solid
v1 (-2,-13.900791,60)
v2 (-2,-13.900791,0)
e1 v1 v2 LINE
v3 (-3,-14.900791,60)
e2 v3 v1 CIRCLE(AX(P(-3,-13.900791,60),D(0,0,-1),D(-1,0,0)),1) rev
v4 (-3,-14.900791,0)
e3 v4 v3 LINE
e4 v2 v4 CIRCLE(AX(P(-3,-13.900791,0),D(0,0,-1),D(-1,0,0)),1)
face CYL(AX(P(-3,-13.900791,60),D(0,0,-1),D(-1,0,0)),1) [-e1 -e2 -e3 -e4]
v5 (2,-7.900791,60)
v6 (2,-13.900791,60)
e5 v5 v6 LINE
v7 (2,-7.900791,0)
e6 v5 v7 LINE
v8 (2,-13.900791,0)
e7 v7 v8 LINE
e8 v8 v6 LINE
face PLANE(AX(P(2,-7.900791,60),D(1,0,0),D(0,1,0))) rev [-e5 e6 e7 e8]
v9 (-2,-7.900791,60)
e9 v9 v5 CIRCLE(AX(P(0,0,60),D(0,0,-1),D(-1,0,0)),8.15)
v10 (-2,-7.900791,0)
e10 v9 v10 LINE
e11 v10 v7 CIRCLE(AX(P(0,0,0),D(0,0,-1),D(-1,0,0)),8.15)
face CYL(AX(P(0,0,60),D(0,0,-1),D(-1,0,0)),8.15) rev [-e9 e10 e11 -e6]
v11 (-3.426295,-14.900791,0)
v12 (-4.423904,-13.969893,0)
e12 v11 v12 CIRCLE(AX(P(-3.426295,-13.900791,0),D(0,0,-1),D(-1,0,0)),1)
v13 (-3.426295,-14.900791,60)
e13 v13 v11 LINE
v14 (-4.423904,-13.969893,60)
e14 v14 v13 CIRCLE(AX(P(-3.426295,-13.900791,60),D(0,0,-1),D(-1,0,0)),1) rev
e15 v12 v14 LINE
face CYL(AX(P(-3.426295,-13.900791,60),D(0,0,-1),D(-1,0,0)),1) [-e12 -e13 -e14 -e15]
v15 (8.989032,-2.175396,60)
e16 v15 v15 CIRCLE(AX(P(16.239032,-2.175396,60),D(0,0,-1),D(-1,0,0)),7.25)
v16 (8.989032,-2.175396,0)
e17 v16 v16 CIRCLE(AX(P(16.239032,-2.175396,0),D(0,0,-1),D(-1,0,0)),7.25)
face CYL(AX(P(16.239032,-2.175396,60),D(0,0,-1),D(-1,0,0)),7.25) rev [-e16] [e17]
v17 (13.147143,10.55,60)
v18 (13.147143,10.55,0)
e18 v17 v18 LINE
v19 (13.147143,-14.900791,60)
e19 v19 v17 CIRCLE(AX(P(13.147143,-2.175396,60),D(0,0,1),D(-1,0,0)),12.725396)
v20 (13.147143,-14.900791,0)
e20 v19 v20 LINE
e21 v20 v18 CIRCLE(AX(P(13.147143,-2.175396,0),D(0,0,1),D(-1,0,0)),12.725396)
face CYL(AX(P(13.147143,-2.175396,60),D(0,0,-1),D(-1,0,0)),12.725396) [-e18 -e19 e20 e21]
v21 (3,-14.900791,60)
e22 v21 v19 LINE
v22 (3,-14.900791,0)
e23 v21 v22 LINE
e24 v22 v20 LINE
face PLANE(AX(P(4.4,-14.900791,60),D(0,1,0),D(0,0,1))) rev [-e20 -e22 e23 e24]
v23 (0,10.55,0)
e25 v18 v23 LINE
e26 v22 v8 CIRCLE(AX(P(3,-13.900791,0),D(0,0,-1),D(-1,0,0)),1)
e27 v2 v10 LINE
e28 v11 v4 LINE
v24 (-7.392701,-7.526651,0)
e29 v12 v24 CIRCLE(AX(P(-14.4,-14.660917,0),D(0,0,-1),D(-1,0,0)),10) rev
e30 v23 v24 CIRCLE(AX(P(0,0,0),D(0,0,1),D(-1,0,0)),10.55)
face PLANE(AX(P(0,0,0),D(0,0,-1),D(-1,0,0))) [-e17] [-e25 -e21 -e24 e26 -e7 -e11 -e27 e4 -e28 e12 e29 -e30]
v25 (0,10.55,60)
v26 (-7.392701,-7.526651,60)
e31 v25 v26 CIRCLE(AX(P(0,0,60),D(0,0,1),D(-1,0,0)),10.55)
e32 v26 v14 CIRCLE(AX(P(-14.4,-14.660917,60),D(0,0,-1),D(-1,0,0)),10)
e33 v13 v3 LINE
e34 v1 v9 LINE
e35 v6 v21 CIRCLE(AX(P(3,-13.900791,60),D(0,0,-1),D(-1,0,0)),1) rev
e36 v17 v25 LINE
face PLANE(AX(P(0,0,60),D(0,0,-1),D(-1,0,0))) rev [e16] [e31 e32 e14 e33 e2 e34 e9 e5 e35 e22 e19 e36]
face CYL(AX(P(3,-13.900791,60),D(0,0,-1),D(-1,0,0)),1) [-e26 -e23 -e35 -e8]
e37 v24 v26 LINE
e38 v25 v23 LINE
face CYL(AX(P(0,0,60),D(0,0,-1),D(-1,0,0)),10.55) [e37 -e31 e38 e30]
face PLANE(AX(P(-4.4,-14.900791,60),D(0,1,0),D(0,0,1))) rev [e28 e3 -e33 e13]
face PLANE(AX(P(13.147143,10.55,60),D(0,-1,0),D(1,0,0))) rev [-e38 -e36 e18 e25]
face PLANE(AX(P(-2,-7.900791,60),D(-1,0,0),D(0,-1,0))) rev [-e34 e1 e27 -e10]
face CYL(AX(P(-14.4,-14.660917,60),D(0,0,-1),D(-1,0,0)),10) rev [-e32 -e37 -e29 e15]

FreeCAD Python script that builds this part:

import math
import FreeCAD as App
import Part
import Sketcher

V = App.Vector


def edges_at(feature, points):
    """Names of the edges that pass closest to the given points."""
    edges = feature.Shape.Edges
    near = lambda p: min(range(len(edges)), key=lambda i: edges[i].distToShape(Part.Vertex(*p))[0])
    return sorted({f"Edge{near(p) + 1}" for p in points})

doc = App.newDocument("Part")
body = doc.addObject("PartDesign::Body", "Body")

# Sketch on XY plane
sketch1 = body.newObject("Sketcher::SketchObject", "Sketch")
sketch1.AttachmentSupport = (doc.getObject("XY_Plane"), [""])
sketch1.MapMode = "FlatFace"
sketch1.addGeometry(Part.LineSegment(V(-2, -14.900791, 0), V(-2, -7.900791, 0)), False)
sketch1.addGeometry(Part.ArcOfCircle(Part.Circle(V(0, 0, 0), V(0, 0, 1), 8.15), math.radians(-75.794599), math.radians(255.794599)), False)
sketch1.addGeometry(Part.LineSegment(V(2, -7.900791, 0), V(2, -14.900791, 0)), False)
sketch1.addGeometry(Part.LineSegment(V(2, -14.900791, 0), V(13.147143, -14.900791, 0)), False)
sketch1.addGeometry(Part.ArcOfCircle(Part.Circle(V(13.147143, -2.175396, 0), V(0, 0, 1), 12.725396), math.radians(-90), math.radians(90)), False)
sketch1.addGeometry(Part.LineSegment(V(13.147143, 10.55, 0), V(0, 10.55, 0)), False)
sketch1.addGeometry(Part.ArcOfCircle(Part.Circle(V(0, 0, 0), V(0, 0, 1), 10.55), math.radians(90), math.radians(245.350787)), False)
sketch1.addGeometry(Part.LineSegment(V(-4.4, -9.588665, 0), V(-4.4, -14.900791, 0)), False)
sketch1.addGeometry(Part.LineSegment(V(-4.4, -14.900791, 0), V(-2, -14.900791, 0)), False)
sketch1.addConstraint(Sketcher.Constraint("Coincident", 0, 2, 1, 2))
sketch1.addConstraint(Sketcher.Constraint("Coincident", 1, 1, 2, 1))
sketch1.addConstraint(Sketcher.Constraint("Coincident", 2, 2, 3, 1))
sketch1.addConstraint(Sketcher.Constraint("Tangent", 3, 2, 4, 1))
sketch1.addConstraint(Sketcher.Constraint("Tangent", 4, 2, 5, 1))
sketch1.addConstraint(Sketcher.Constraint("Tangent", 5, 2, 6, 1))
sketch1.addConstraint(Sketcher.Constraint("Coincident", 6, 2, 7, 1))
sketch1.addConstraint(Sketcher.Constraint("Coincident", 7, 2, 8, 1))
sketch1.addConstraint(Sketcher.Constraint("Coincident", 8, 2, 0, 1))
sketch1.addConstraint(Sketcher.Constraint("Vertical", 0))
sketch1.addConstraint(Sketcher.Constraint("Vertical", 2))
sketch1.addConstraint(Sketcher.Constraint("Horizontal", 3))
sketch1.addConstraint(Sketcher.Constraint("Horizontal", 5))
sketch1.addConstraint(Sketcher.Constraint("Vertical", 7))
sketch1.addConstraint(Sketcher.Constraint("Horizontal", 8))
sketch1.addConstraint(Sketcher.Constraint("Coincident", 1, 3, -1, 1))
sketch1.addConstraint(Sketcher.Constraint("Coincident", 6, 3, -1, 1))
sketch1.addConstraint(Sketcher.Constraint("Symmetric", 2, 2, 8, 2, -2))
sketch1.addConstraint(Sketcher.Constraint("DistanceY", 0, 1, 0, 2, 7.0))
sketch1.addConstraint(Sketcher.Constraint("Radius", 1, 8.15))
sketch1.addConstraint(Sketcher.Constraint("Radius", 6, 10.55))
sketch1.addConstraint(Sketcher.Constraint("DistanceX", 8, 1, 8, 2, 2.4))
sketch1.addConstraint(Sketcher.Constraint("DistanceX", 0, 2, -1, 1, 2.0))
sketch1.addConstraint(Sketcher.Constraint("DistanceX", 3, 1, 3, 2, 11.147143))
pad1 = body.newObject("PartDesign::Pad", "Pad")
pad1.Profile = sketch1
pad1.Length = 60

# Sketch on XY plane
sketch2 = body.newObject("Sketcher::SketchObject", "Sketch001")
sketch2.AttachmentSupport = (doc.getObject("XY_Plane"), [""])
sketch2.MapMode = "FlatFace"
sketch2.addGeometry(Part.Circle(V(16.239032, -2.175396, 0), V(0, 0, 1), 7.25), False)
sketch2.addConstraint(Sketcher.Constraint("Diameter", 0, 14.5))
sketch2.addConstraint(Sketcher.Constraint("DistanceX", -1, 1, 0, 3, 16.239032))
sketch2.addConstraint(Sketcher.Constraint("DistanceY", 0, 3, -1, 1, 2.175396))
pocket1 = body.newObject("PartDesign::Pocket", "Pocket")
pocket1.Profile = sketch2
pocket1.Type = "ThroughAll"
pocket1.Reversed = True
doc.recompute()

fillet = body.newObject("PartDesign::Fillet", "Fillet")
fillet.Base = (pocket1, edges_at(pocket1, [(-4.4, -9.589, 30)]))
fillet.Radius = 10
doc.recompute()

fillet2 = body.newObject("PartDesign::Fillet", "Fillet001")
fillet2.Base = (fillet, edges_at(fillet, [(-4.4, -14.901, 30), (-2, -14.901, 30), (2, -14.901, 30)]))
fillet2.Radius = 1

doc.recompute()
